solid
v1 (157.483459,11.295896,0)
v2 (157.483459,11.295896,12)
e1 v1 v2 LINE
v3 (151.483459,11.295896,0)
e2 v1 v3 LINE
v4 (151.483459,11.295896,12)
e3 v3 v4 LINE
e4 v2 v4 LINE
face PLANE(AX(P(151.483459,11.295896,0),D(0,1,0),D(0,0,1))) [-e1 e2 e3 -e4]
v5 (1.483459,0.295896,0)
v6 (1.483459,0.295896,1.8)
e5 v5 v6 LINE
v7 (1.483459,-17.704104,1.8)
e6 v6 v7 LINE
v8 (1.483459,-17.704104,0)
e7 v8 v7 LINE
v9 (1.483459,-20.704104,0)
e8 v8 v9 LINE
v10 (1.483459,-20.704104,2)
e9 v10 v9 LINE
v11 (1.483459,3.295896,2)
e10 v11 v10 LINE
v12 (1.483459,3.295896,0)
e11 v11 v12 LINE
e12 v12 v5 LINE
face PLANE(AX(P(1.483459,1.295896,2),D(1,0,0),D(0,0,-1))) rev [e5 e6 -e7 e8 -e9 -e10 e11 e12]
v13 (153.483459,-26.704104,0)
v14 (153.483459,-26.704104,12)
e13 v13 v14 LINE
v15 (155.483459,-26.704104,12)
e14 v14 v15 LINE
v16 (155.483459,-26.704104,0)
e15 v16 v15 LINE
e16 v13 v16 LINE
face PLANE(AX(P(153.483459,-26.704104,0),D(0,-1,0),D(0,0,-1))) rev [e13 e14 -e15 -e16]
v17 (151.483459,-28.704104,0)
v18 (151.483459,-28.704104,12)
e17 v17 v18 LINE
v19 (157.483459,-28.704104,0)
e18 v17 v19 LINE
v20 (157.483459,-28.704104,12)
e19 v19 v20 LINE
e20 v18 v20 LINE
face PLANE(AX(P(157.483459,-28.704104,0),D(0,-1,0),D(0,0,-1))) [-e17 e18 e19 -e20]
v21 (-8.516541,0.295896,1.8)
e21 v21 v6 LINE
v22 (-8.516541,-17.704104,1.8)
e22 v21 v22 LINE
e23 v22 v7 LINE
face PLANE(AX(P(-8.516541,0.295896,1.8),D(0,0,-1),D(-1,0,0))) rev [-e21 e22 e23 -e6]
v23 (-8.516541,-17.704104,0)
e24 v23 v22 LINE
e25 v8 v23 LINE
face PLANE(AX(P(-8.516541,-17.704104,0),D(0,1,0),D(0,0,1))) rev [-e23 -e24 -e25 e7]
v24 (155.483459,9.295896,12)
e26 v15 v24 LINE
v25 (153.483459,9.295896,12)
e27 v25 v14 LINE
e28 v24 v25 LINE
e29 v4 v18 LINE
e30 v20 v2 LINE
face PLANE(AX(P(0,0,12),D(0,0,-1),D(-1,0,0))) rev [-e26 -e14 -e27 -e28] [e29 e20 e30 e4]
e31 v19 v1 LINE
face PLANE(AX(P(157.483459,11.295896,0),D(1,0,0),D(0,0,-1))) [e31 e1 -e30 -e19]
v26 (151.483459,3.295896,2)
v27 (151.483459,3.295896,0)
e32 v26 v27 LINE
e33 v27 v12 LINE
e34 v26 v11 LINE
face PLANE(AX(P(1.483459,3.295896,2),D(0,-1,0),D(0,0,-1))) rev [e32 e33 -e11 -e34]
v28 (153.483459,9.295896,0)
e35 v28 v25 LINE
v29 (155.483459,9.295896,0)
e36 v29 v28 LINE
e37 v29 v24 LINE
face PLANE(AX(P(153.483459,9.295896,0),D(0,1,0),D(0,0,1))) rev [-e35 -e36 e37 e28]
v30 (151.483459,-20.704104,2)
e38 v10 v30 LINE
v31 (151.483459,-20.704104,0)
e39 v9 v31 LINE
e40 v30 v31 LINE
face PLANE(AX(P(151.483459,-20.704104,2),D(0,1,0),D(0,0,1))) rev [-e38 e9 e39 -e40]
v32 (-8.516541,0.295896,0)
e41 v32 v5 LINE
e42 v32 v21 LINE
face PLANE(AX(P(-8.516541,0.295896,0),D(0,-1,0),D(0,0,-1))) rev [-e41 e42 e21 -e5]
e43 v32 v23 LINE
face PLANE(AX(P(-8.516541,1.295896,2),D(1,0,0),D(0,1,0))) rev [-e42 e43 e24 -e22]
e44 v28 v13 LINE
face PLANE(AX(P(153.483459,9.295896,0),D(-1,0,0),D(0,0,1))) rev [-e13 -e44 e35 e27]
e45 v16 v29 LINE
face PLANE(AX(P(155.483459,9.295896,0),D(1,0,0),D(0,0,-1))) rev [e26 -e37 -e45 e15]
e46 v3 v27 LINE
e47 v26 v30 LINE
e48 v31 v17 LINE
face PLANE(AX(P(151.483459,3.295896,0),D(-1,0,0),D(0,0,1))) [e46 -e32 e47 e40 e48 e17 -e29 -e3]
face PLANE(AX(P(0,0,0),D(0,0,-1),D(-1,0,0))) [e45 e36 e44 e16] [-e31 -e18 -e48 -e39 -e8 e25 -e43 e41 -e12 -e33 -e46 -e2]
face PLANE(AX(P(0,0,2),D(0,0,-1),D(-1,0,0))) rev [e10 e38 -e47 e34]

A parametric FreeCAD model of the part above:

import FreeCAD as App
import Part
import Sketcher
from FreeCAD import Vector

doc = App.newDocument("Part")
body = doc.addObject("PartDesign::Body", "Body")

# Sketch on XY plane
sketch1 = body.newObject("Sketcher::SketchObject", "Sketch")
sketch1.AttachmentSupport = (doc.getObject("XY_Plane"), [""])
sketch1.MapMode = "FlatFace"
sketch1.addGeometry([
    Part.LineSegment(Vector(1.5, 1.3, 0), Vector(-8.5, 1.3, 0)),  # 0
    Part.LineSegment(Vector(-8.5, 1.3, 0), Vector(-8.5, -18.7, 0)),  # 1
    Part.LineSegment(Vector(-8.5, -18.7, 0), Vector(1.5, -18.7, 0)),  # 2
    Part.LineSegment(Vector(1.5, -18.7, 0), Vector(1.5, -20.7, 0)),  # 3
    Part.LineSegment(Vector(1.5, -20.7, 0), Vector(151.5, -20.7, 0)),  # 4
    Part.LineSegment(Vector(151.5, -20.7, 0), Vector(151.5, 3.3, 0)),  # 5
    Part.LineSegment(Vector(151.5, 3.3, 0), Vector(1.5, 3.3, 0)),  # 6
    Part.LineSegment(Vector(1.5, 3.3, 0), Vector(1.5, 1.3, 0)),  # 7
], False)
sketch1.addConstraint([
    Sketcher.Constraint("Coincident", 0, 2, 1, 1),
    Sketcher.Constraint("Coincident", 1, 2, 2, 1),
    Sketcher.Constraint("Coincident", 2, 2, 3, 1),
    Sketcher.Constraint("Coincident", 3, 2, 4, 1),
    Sketcher.Constraint("Coincident", 4, 2, 5, 1),
    Sketcher.Constraint("Coincident", 5, 2, 6, 1),
    Sketcher.Constraint("Coincident", 6, 2, 7, 1),
    Sketcher.Constraint("Coincident", 7, 2, 0, 1),
    Sketcher.Constraint("Horizontal", 0),
    Sketcher.Constraint("Vertical", 1),
    Sketcher.Constraint("Horizontal", 2),
    Sketcher.Constraint("Vertical", 3),
    Sketcher.Constraint("Horizontal", 4),
    Sketcher.Constraint("Vertical", 5),
    Sketcher.Constraint("Horizontal", 6),
    Sketcher.Constraint("Vertical", 7),
    Sketcher.Constraint("Vertical", 3, 2, 6, 2),
    Sketcher.Constraint("Equal", 3, 7),
    Sketcher.Constraint("DistanceX", 0, 2, 0, 1, 10.0),
    Sketcher.Constraint("DistanceX", 4, 1, 4, 2, 150.0),
    Sketcher.Constraint("DistanceY", 1, 2, 1, 1, 20.0),
    Sketcher.Constraint("DistanceY", 3, 2, 3, 1, 2.0),
    Sketcher.Constraint("DistanceX", 0, 2, -1, 1, 8.516541),
    Sketcher.Constraint("DistanceY", -1, 1, 0, 2, 1.295896),
])
pad1 = body.newObject("PartDesign::Pad", "Pad")
pad1.Profile = sketch1
pad1.Length = 2

# Sketch on XY plane
sketch2 = body.newObject("Sketcher::SketchObject", "Sketch001")
sketch2.AttachmentSupport = (doc.getObject("XY_Plane"), [""])
sketch2.MapMode = "FlatFace"
sketch2.AttachmentOffset = App.Placement(Vector(0, 0, 2), App.Rotation())
sketch2.addGeometry([
    Part.LineSegment(Vector(151.5, 11.3, 0), Vector(151.5, -28.7, 0)),  # 0
    Part.LineSegment(Vector(151.5, -28.7, 0), Vector(157.5, -28.7, 0)),  # 1
    Part.LineSegment(Vector(157.5, -28.7, 0), Vector(157.5, 11.3, 0)),  # 2
    Part.LineSegment(Vector(157.5, 11.3, 0), Vector(151.5, 11.3, 0)),  # 3
    Part.LineSegment(Vector(153.5, -26.7, 0), Vector(153.5, 9.3, 0)),  # 4
    Part.LineSegment(Vector(153.5, 9.3, 0), Vector(155.5, 9.3, 0)),  # 5
    Part.LineSegment(Vector(155.5, 9.3, 0), Vector(155.5, -26.7, 0)),  # 6
    Part.LineSegment(Vector(155.5, -26.7, 0), Vector(153.5, -26.7, 0)),  # 7
], False)
sketch2.addConstraint([
    Sketcher.Constraint("Coincident", 0, 2, 1, 1),
    Sketcher.Constraint("Coincident", 1, 2, 2, 1),
    Sketcher.Constraint("Coincident", 2, 2, 3, 1),
    Sketcher.Constraint("Coincident", 3, 2, 0, 1),
    Sketcher.Constraint("Coincident", 4, 2, 5, 1),
    Sketcher.Constraint("Coincident", 5, 2, 6, 1),
    Sketcher.Constraint("Coincident", 6, 2, 7, 1),
    Sketcher.Constraint("Coincident", 7, 2, 4, 1),
    Sketcher.Constraint("Vertical", 0),
    Sketcher.Constraint("Horizontal", 1),
    Sketcher.Constraint("Vertical", 2),
    Sketcher.Constraint("Horizontal", 3),
    Sketcher.Constraint("Vertical", 4),
    Sketcher.Constraint("Horizontal", 5),
    Sketcher.Constraint("Vertical", 6),
    Sketcher.Constraint("Horizontal", 7),
    Sketcher.Constraint("DistanceX", 1, 1, 1, 2, 6.0),
    Sketcher.Constraint("DistanceX", 5, 1, 5, 2, 2.0),
    Sketcher.Constraint("DistanceY", 0, 2, 0, 1, 40.0),
    Sketcher.Constraint("DistanceY", 4, 1, 4, 2, 36.0),
    Sketcher.Constraint("DistanceX", 3, 2, 4, 2, 2.0),
    Sketcher.Constraint("DistanceY", 4, 2, 3, 2, 2.0),
    Sketcher.Constraint("DistanceX", -1, 1, 0, 2, 151.483459),
    Sketcher.Constraint("DistanceY", 0, 2, -1, 1, 28.704104),
])
pad2 = body.newObject("PartDesign::Pad", "Pad001")
pad2.Profile = sketch2
pad2.Length = 2
pad2.Reversed = True

# Sketch on XY plane
sketch3 = body.newObject("Sketcher::SketchObject", "Sketch002")
sketch3.AttachmentSupport = (doc.getObject("XY_Plane"), [""])
sketch3.MapMode = "FlatFace"
sketch3.AttachmentOffset = App.Placement(Vector(0, 0, 2), App.Rotation())
sketch3.addGeometry([
    Part.LineSegment(Vector(151.5, 11.3, 0), Vector(151.5, -28.7, 0)),  # 0
    Part.LineSegment(Vector(151.5, -28.7, 0), Vector(157.5, -28.7, 0)),  # 1
    Part.LineSegment(Vector(157.5, -28.7, 0), Vector(157.5, 11.3, 0)),  # 2
    Part.LineSegment(Vector(157.5, 11.3, 0), Vector(151.5, 11.3, 0)),  # 3
    Part.LineSegment(Vector(153.5, -26.7, 0), Vector(153.5, 9.3, 0)),  # 4
    Part.LineSegment(Vector(153.5, 9.3, 0), Vector(155.5, 9.3, 0)),  # 5
    Part.LineSegment(Vector(155.5, 9.3, 0), Vector(155.5, -26.7, 0)),  # 6
    Part.LineSegment(Vector(155.5, -26.7, 0), Vector(153.5, -26.7, 0)),  # 7
], False)
sketch3.addConstraint([
    Sketcher.Constraint("Coincident", 0, 2, 1, 1),
    Sketcher.Constraint("Coincident", 1, 2, 2, 1),
    Sketcher.Constraint("Coincident", 2, 2, 3, 1),
    Sketcher.Constraint("Coincident", 3, 2, 0, 1),
    Sketcher.Constraint("Coincident", 4, 2, 5, 1),
    Sketcher.Constraint("Coincident", 5, 2, 6, 1),
    Sketcher.Constraint("Coincident", 6, 2, 7, 1),
    Sketcher.Constraint("Coincident", 7, 2, 4, 1),
    Sketcher.Constraint("Vertical", 0),
    Sketcher.Constraint("Horizontal", 1),
    Sketcher.Constraint("Vertical", 2),
    Sketcher.Constraint("Horizontal", 3),
    Sketcher.Constraint("Vertical", 4),
    Sketcher.Constraint("Horizontal", 5),
    Sketcher.Constraint("Vertical", 6),
    Sketcher.Constraint("Horizontal", 7),
    Sketcher.Constraint("DistanceX", 1, 1, 1, 2, 6.0),
    Sketcher.Constraint("DistanceX", 5, 1, 5, 2, 2.0),
    Sketcher.Constraint("DistanceY", 0, 2, 0, 1, 40.0),
    Sketcher.Constraint("DistanceY", 4, 1, 4, 2, 36.0),
    Sketcher.Constraint("DistanceX", 3, 2, 4, 2, 2.0),
    Sketcher.Constraint("DistanceY", 4, 2, 3, 2, 2.0),
    Sketcher.Constraint("DistanceX", -1, 1, 0, 2, 151.483459),
    Sketcher.Constraint("DistanceY", 0, 2, -1, 1, 28.704104),
])
pad3 = body.newObject("PartDesign::Pad", "Pad002")
pad3.Profile = sketch3
pad3.Length = 10

# Sketch on XY plane
sketch4 = body.newObject("Sketcher::SketchObject", "Sketch003")
sketch4.AttachmentSupport = (doc.getObject("XY_Plane"), [""])
sketch4.MapMode = "FlatFace"
sketch4.AttachmentOffset = App.Placement(Vector(0, 0, 2), App.Rotation())
sketch4.addGeometry([
    Part.LineSegment(Vector(-8.5, 1.3, 0), Vector(-8.5, 0.3, 0)),  # 0
    Part.LineSegment(Vector(-8.5, 0.3, 0), Vector(1.5, 0.3, 0)),  # 1
    Part.LineSegment(Vector(1.5, 0.3, 0), Vector(1.5, 1.3, 0)),  # 2
    Part.LineSegment(Vector(1.5, 1.3, 0), Vector(-8.5, 1.3, 0)),  # 3
    Part.LineSegment(Vector(-8.5, -17.7, 0), Vector(-8.5, -18.7, 0)),  # 4
    Part.LineSegment(Vector(-8.5, -18.7, 0), Vector(1.5, -18.7, 0)),  # 5
    Part.LineSegment(Vector(1.5, -18.7, 0), Vector(1.5, -17.7, 0)),  # 6
    Part.LineSegment(Vector(1.5, -17.7, 0), Vector(-8.5, -17.7, 0)),  # 7
], False)
sketch4.addConstraint([
    Sketcher.Constraint("Coincident", 0, 2, 1, 1),
    Sketcher.Constraint("Coincident", 1, 2, 2, 1),
    Sketcher.Constraint("Coincident", 2, 2, 3, 1),
    Sketcher.Constraint("Coincident", 3, 2, 0, 1),
    Sketcher.Constraint("Coincident", 4, 2, 5, 1),
    Sketcher.Constraint("Coincident", 5, 2, 6, 1),
    Sketcher.Constraint("Coincident", 6, 2, 7, 1),
    Sketcher.Constraint("Coincident", 7, 2, 4, 1),
    Sketcher.Constraint("Vertical", 0),
    Sketcher.Constraint("Horizontal", 1),
    Sketcher.Constraint("Vertical", 2),
    Sketcher.Constraint("Horizontal", 3),
    Sketcher.Constraint("Vertical", 4),
    Sketcher.Constraint("Horizontal", 5),
    Sketcher.Constraint("Vertical", 6),
    Sketcher.Constraint("Horizontal", 7),
    Sketcher.Constraint("Vertical", 3, 2, 4, 2),
    Sketcher.Constraint("Vertical", 2, 2, 5, 2),
    Sketcher.Constraint("Equal", 2, 4),
    Sketcher.Constraint("DistanceX", 1, 1, 1, 2, 10.0),
    Sketcher.Constraint("DistanceY", 0, 2, 0, 1, 1.0),
    Sketcher.Constraint("DistanceY", 4, 2, 0, 2, 19.0),
    Sketcher.Constraint("DistanceX", 0, 2, -1, 1, 8.516541),
    Sketcher.Constraint("DistanceY", -1, 1, 0, 2, 0.295896),
])
pocket1 = body.newObject("PartDesign::Pocket", "Pocket")
pocket1.Profile = sketch4
pocket1.Length = 2

# Sketch on XZ plane
sketch5 = body.newObject("Sketcher::SketchObject", "Sketch004")
sketch5.AttachmentSupport = (doc.getObject("XZ_Plane"), [""])
sketch5.MapMode = "FlatFace"
sketch5.AttachmentOffset = App.Placement(Vector(0, 0, 17.704104), App.Rotation())
sketch5.addGeometry([
    Part.LineSegment(Vector(-8.52, 2, 0), Vector(-8.52, 1.8, 0)),
    Part.LineSegment(Vector(-8.52, 1.8, 0), Vector(1.48, 1.8, 0)),
    Part.LineSegment(Vector(1.48, 1.8, 0), Vector(1.48, 2, 0)),
    Part.LineSegment(Vector(1.48, 2, 0), Vector(-8.52, 2, 0)),
], False)
sketch5.addConstraint([
    Sketcher.Constraint("Coincident", 0, 2, 1, 1),
    Sketcher.Constraint("Coincident", 1, 2, 2, 1),
    Sketcher.Constraint("Coincident", 2, 2, 3, 1),
    Sketcher.Constraint("Coincident", 3, 2, 0, 1),
    Sketcher.Constraint("Vertical", 0),
    Sketcher.Constraint("Horizontal", 1),
    Sketcher.Constraint("Vertical", 2),
    Sketcher.Constraint("Horizontal", 3),
    Sketcher.Constraint("DistanceX", 1, 1, 1, 2, 10.0),
    Sketcher.Constraint("DistanceY", 0, 2, 0, 1, 0.2),
    Sketcher.Constraint("DistanceY", -1, 1, 2, 2, 2.0),
    Sketcher.Constraint("DistanceX", 0, 2, -1, 1, 8.516541),
])
pocket2 = body.newObject("PartDesign::Pocket", "Pocket001")
pocket2.Profile = sketch5
pocket2.Length = 18

doc.recompute()
